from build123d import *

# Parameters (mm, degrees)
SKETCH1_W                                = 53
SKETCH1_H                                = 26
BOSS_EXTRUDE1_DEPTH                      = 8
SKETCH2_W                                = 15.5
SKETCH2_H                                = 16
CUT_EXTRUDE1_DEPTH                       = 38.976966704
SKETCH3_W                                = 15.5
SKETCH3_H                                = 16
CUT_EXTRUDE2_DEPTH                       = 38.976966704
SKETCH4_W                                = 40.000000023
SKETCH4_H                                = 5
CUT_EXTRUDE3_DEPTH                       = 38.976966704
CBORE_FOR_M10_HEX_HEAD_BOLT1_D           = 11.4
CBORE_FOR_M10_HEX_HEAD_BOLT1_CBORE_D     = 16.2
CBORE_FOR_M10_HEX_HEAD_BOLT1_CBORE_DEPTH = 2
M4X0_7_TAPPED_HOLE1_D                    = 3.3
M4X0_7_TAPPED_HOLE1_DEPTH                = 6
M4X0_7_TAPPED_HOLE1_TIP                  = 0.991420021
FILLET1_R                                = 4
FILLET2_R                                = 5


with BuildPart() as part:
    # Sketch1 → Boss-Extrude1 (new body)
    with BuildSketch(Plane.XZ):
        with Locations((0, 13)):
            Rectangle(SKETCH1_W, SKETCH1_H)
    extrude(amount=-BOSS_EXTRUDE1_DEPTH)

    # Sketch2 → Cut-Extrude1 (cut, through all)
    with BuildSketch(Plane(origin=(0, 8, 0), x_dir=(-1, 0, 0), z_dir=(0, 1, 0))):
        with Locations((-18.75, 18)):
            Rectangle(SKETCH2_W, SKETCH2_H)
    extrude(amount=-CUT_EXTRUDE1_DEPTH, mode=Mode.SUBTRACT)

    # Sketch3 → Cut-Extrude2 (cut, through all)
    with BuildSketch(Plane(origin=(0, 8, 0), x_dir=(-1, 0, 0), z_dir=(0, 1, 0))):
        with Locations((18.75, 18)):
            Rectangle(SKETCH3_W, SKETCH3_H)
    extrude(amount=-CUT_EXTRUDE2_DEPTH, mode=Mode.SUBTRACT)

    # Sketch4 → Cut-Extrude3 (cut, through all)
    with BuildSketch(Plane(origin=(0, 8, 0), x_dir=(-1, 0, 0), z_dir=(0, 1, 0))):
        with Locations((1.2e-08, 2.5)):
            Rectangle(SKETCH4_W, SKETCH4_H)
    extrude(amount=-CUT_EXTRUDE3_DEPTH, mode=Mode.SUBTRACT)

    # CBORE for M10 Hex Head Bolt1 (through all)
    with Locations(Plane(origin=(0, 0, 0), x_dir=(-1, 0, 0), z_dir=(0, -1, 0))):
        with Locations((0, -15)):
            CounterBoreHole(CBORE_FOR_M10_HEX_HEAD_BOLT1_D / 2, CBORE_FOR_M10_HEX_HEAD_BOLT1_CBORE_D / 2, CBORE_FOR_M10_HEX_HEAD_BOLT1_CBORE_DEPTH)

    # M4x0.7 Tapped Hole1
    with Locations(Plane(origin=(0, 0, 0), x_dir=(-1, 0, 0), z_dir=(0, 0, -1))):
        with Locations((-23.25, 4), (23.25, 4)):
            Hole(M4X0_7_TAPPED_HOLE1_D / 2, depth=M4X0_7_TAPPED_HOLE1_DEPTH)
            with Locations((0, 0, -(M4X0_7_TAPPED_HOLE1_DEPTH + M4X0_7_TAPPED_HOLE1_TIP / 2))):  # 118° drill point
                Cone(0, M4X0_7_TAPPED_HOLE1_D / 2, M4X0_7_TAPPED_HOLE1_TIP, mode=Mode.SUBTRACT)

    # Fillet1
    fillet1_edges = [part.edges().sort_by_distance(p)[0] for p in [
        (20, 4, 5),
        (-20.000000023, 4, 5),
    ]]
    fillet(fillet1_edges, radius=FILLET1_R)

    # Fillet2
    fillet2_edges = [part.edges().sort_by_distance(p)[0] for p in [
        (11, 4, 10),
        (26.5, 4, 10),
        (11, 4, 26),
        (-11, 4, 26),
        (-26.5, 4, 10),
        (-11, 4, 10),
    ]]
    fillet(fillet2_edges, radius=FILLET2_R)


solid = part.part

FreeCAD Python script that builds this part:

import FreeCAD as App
import Part
import Sketcher
from FreeCAD import Vector


def edges_at(feature, points):
    """Names of the edges that pass closest to the given points."""
    edges = feature.Shape.Edges
    near = lambda p: min(range(len(edges)), key=lambda i: edges[i].distToShape(Part.Vertex(*p))[0])
    return sorted({f"Edge{near(p) + 1}" for p in points})

doc = App.newDocument("Part")
params = doc.addObject("Spreadsheet::Sheet", "Params")
for row, (alias, value) in enumerate([
    ("sketch1_width", "53 mm"),
    ("sketch1_height", "26 mm"),
    ("pad1_length", "8 mm"),
    ("sketch2_height", "16 mm"),
    ("sketch2_width", "15.5 mm"),
    ("sketch3_height", "16 mm"),
    ("sketch3_width", "15.5 mm"),
    ("sketch4_width", "40 mm"),
    ("sketch4_height", "5 mm"),
    ("sketch5_diameter", "11.4 mm"),
    ("hole_diameter", "11.4 mm"),
    ("hole_cbore_diameter", "16.2 mm"),
    ("hole_cbore_depth", "2 mm"),
    ("sketch6_diameter", "3.3 mm"),
    ("hole2_diameter", "3.3 mm"),
    ("hole2_depth", "6 mm"),
    ("fillet_radius", "4 mm"),
    ("fillet2_radius", "5 mm"),
], start=1):
    params.set(f"A{row}", alias)
    params.set(f"B{row}", "=" + value)
    params.setAlias(f"B{row}", alias)

body = doc.addObject("PartDesign::Body", "Body")

# Sketch on XZ plane
sketch1 = doc.addObject("Sketcher::SketchObject", "Sketch")
body.addObject(sketch1)
sketch1.AttachmentSupport = (doc.XZ_Plane, [""])
sketch1.MapMode = "FlatFace"
sketch1.addGeometry([
    Part.LineSegment(Vector(-26, 26, 0), Vector(-26, 0, 0)),
    Part.LineSegment(Vector(-26, 0, 0), Vector(26, 0, 0)),
    Part.LineSegment(Vector(26, 0, 0), Vector(26, 26, 0)),
    Part.LineSegment(Vector(26, 26, 0), Vector(-26, 26, 0)),
], False)
sketch1.addConstraint([
    Sketcher.Constraint("Coincident", 0, 2, 1, 1),
    Sketcher.Constraint("Coincident", 1, 2, 2, 1),
    Sketcher.Constraint("Coincident", 2, 2, 3, 1),
    Sketcher.Constraint("Coincident", 3, 2, 0, 1),
    Sketcher.Constraint("Vertical", 0),
    Sketcher.Constraint("Horizontal", 1),
    Sketcher.Constraint("Vertical", 2),
    Sketcher.Constraint("Horizontal", 3),
    Sketcher.Constraint("Symmetric", 0, 2, 1, 2, -1, 1),
    Sketcher.Constraint("DistanceX", 1, 1, 1, 2, 53.0),
    Sketcher.Constraint("DistanceY", 0, 2, 0, 1, 26.0),
])
sketch1.setExpression("Constraints[9]", "Params.sketch1_width")
sketch1.setExpression("Constraints[10]", "Params.sketch1_height")
pad1 = doc.addObject("PartDesign::Pad", "Pad")
body.addObject(pad1)
pad1.Profile = sketch1
pad1.setExpression("Length", "Params.pad1_length")
pad1.Reversed = True

# Sketch on XZ plane
sketch2 = doc.addObject("Sketcher::SketchObject", "Sketch001")
body.addObject(sketch2)
sketch2.AttachmentSupport = (doc.XZ_Plane, [""])
sketch2.MapMode = "FlatFace"
sketch2.AttachmentOffset = App.Placement(Vector(0, 0, -8), App.Rotation())
sketch2.addGeometry([
    Part.LineSegment(Vector(26, 26, 0), Vector(26, 10, 0)),
    Part.LineSegment(Vector(26, 10, 0), Vector(11, 10, 0)),
    Part.LineSegment(Vector(11, 10, 0), Vector(11, 26, 0)),
    Part.LineSegment(Vector(11, 26, 0), Vector(26, 26, 0)),
], False)
sketch2.addConstraint([
    Sketcher.Constraint("Coincident", 0, 2, 1, 1),
    Sketcher.Constraint("Coincident", 1, 2, 2, 1),
    Sketcher.Constraint("Coincident", 2, 2, 3, 1),
    Sketcher.Constraint("Coincident", 3, 2, 0, 1),
    Sketcher.Constraint("Vertical", 0),
    Sketcher.Constraint("Horizontal", 1),
    Sketcher.Constraint("Vertical", 2),
    Sketcher.Constraint("Horizontal", 3),
    Sketcher.Constraint("DistanceY", 0, 2, 0, 1, 16.0),
    Sketcher.Constraint("DistanceX", 1, 2, 1, 1, 15.5),
    Sketcher.Constraint("DistanceY", -1, 1, 0, 2, 10.0),
    Sketcher.Constraint("DistanceX", -1, 1, 1, 2, 11.0),
])
sketch2.setExpression("Constraints[8]", "Params.sketch2_height")
sketch2.setExpression("Constraints[9]", "Params.sketch2_width")
pocket1 = doc.addObject("PartDesign::Pocket", "Pocket")
body.addObject(pocket1)
pocket1.Profile = sketch2
pocket1.Type = "ThroughAll"
pocket1.Reversed = True

# Sketch on XZ plane
sketch3 = doc.addObject("Sketcher::SketchObject", "Sketch002")
body.addObject(sketch3)
sketch3.AttachmentSupport = (doc.XZ_Plane, [""])
sketch3.MapMode = "FlatFace"
sketch3.AttachmentOffset = App.Placement(Vector(0, 0, -8), App.Rotation())
sketch3.addGeometry([
    Part.LineSegment(Vector(-11, 26, 0), Vector(-11, 10, 0)),
    Part.LineSegment(Vector(-11, 10, 0), Vector(-26, 10, 0)),
    Part.LineSegment(Vector(-26, 10, 0), Vector(-26, 26, 0)),
    Part.LineSegment(Vector(-26, 26, 0), Vector(-11, 26, 0)),
], False)
sketch3.addConstraint([
    Sketcher.Constraint("Coincident", 0, 2, 1, 1),
    Sketcher.Constraint("Coincident", 1, 2, 2, 1),
    Sketcher.Constraint("Coincident", 2, 2, 3, 1),
    Sketcher.Constraint("Coincident", 3, 2, 0, 1),
    Sketcher.Constraint("Vertical", 0),
    Sketcher.Constraint("Horizontal", 1),
    Sketcher.Constraint("Vertical", 2),
    Sketcher.Constraint("Horizontal", 3),
    Sketcher.Constraint("DistanceY", 0, 2, 0, 1, 16.0),
    Sketcher.Constraint("DistanceX", 1, 2, 1, 1, 15.5),
    Sketcher.Constraint("DistanceX", 0, 2, -1, 1, 11.0),
    Sketcher.Constraint("DistanceY", -1, 1, 0, 2, 10.0),
])
sketch3.setExpression("Constraints[8]", "Params.sketch3_height")
sketch3.setExpression("Constraints[9]", "Params.sketch3_width")
pocket2 = doc.addObject("PartDesign::Pocket", "Pocket001")
body.addObject(pocket2)
pocket2.Profile = sketch3
pocket2.Type = "ThroughAll"
pocket2.Reversed = True

# Sketch on XZ plane
sketch4 = doc.addObject("Sketcher::SketchObject", "Sketch003")
body.addObject(sketch4)
sketch4.AttachmentSupport = (doc.XZ_Plane, [""])
sketch4.MapMode = "FlatFace"
sketch4.AttachmentOffset = App.Placement(Vector(0, 0, -8), App.Rotation())
sketch4.addGeometry([
    Part.LineSegment(Vector(20, 5, 0), Vector(20, 0, 0)),
    Part.LineSegment(Vector(20, 0, 0), Vector(-20, 0, 0)),
    Part.LineSegment(Vector(-20, 0, 0), Vector(-20, 5, 0)),
    Part.LineSegment(Vector(-20, 5, 0), Vector(20, 5, 0)),
], False)
sketch4.addConstraint([
    Sketcher.Constraint("Coincident", 0, 2, 1, 1),
    Sketcher.Constraint("Coincident", 1, 2, 2, 1),
    Sketcher.Constraint("Coincident", 2, 2, 3, 1),
    Sketcher.Constraint("Coincident", 3, 2, 0, 1),
    Sketcher.Constraint("Vertical", 0),
    Sketcher.Constraint("Horizontal", 1),
    Sketcher.Constraint("Vertical", 2),
    Sketcher.Constraint("Horizontal", 3),
    Sketcher.Constraint("Symmetric", 0, 2, 1, 2, -1, 1),
    Sketcher.Constraint("DistanceX", 1, 2, 1, 1, 40.0),
    Sketcher.Constraint("DistanceY", 0, 2, 0, 1, 5.0),
])
sketch4.setExpression("Constraints[9]", "Params.sketch4_width")
sketch4.setExpression("Constraints[10]", "Params.sketch4_height")
pocket3 = doc.addObject("PartDesign::Pocket", "Pocket002")
body.addObject(pocket3)
pocket3.Profile = sketch4
pocket3.Type = "ThroughAll"
pocket3.Reversed = True

# Sketch on XZ plane
sketch5 = doc.addObject("Sketcher::SketchObject", "Sketch004")
body.addObject(sketch5)
sketch5.AttachmentSupport = (doc.XZ_Plane, [""])
sketch5.MapMode = "FlatFace"
sketch5.addGeometry(Part.Circle(Vector(0, 15, 0), Vector(0, 0, 1), 6), False)
sketch5.addConstraint([
    Sketcher.Constraint("PointOnObject", 0, 3, -2),
    Sketcher.Constraint("Diameter", 0, 11.4),
    Sketcher.Constraint("DistanceY", -1, 1, 0, 3, 15.0),
])
sketch5.setExpression("Constraints[1]", "Params.sketch5_diameter")
doc.recompute()
hole = doc.addObject("PartDesign::Hole", "Hole")
body.addObject(hole)
hole.Profile = sketch5
hole.ThreadType = "None"
hole.setExpression("Diameter", "Params.hole_diameter")
hole.DepthType = "ThroughAll"
hole.HoleCutType = "Counterbore"
hole.setExpression("HoleCutDiameter", "Params.hole_cbore_diameter")
hole.setExpression("HoleCutDepth", "Params.hole_cbore_depth")

# Sketch on XY plane
sketch6 = doc.addObject("Sketcher::SketchObject", "Sketch005")
body.addObject(sketch6)
sketch6.AttachmentSupport = (doc.XY_Plane, [""])
sketch6.MapMode = "FlatFace"
sketch6.addGeometry([
    Part.Circle(Vector(23.2, 4, 0), Vector(0, 0, 1), 1.6),
    Part.Circle(Vector(-23.2, 4, 0), Vector(0, 0, 1), 1.6),
], False)
sketch6.addConstraint([
    Sketcher.Constraint("Equal", 0, 1),
    Sketcher.Constraint("Symmetric", 0, 3, 1, 3, -2),
    Sketcher.Constraint("Diameter", 0, 3.3),
    Sketcher.Constraint("DistanceY", -1, 1, 0, 3, 4.0),
    Sketcher.Constraint("DistanceX", 1, 3, 0, 3, 46.5),
])
sketch6.setExpression("Constraints[2]", "Params.sketch6_diameter")
doc.recompute()
hole2 = doc.addObject("PartDesign::Hole", "Hole001")
body.addObject(hole2)
hole2.Profile = sketch6
hole2.ThreadType = "None"
hole2.setExpression("Diameter", "Params.hole2_diameter")
hole2.DepthType = "Dimension"
hole2.setExpression("Depth", "Params.hole2_depth")
hole2.DrillPoint = "Angled"
hole2.DrillPointAngle = 118
hole2.Reversed = True
doc.recompute()

fillet = doc.addObject("PartDesign::Fillet", "Fillet")
body.addObject(fillet)
fillet.Base = (hole2, edges_at(hole2, [(20, 4, 5), (-20, 4, 5)]))
fillet.setExpression("Radius", "Params.fillet_radius")
doc.recompute()

fillet2 = doc.addObject("PartDesign::Fillet", "Fillet001")
body.addObject(fillet2)
fillet2.Base = (fillet, edges_at(fillet, [
    (11, 4, 10),
    (26.5, 4, 10),
    (11, 4, 26),
    (-11, 4, 26),
    (-26.5, 4, 10),
    (-11, 4, 10),
]))
fillet2.setExpression("Radius", "Params.fillet2_radius")

doc.recompute()
